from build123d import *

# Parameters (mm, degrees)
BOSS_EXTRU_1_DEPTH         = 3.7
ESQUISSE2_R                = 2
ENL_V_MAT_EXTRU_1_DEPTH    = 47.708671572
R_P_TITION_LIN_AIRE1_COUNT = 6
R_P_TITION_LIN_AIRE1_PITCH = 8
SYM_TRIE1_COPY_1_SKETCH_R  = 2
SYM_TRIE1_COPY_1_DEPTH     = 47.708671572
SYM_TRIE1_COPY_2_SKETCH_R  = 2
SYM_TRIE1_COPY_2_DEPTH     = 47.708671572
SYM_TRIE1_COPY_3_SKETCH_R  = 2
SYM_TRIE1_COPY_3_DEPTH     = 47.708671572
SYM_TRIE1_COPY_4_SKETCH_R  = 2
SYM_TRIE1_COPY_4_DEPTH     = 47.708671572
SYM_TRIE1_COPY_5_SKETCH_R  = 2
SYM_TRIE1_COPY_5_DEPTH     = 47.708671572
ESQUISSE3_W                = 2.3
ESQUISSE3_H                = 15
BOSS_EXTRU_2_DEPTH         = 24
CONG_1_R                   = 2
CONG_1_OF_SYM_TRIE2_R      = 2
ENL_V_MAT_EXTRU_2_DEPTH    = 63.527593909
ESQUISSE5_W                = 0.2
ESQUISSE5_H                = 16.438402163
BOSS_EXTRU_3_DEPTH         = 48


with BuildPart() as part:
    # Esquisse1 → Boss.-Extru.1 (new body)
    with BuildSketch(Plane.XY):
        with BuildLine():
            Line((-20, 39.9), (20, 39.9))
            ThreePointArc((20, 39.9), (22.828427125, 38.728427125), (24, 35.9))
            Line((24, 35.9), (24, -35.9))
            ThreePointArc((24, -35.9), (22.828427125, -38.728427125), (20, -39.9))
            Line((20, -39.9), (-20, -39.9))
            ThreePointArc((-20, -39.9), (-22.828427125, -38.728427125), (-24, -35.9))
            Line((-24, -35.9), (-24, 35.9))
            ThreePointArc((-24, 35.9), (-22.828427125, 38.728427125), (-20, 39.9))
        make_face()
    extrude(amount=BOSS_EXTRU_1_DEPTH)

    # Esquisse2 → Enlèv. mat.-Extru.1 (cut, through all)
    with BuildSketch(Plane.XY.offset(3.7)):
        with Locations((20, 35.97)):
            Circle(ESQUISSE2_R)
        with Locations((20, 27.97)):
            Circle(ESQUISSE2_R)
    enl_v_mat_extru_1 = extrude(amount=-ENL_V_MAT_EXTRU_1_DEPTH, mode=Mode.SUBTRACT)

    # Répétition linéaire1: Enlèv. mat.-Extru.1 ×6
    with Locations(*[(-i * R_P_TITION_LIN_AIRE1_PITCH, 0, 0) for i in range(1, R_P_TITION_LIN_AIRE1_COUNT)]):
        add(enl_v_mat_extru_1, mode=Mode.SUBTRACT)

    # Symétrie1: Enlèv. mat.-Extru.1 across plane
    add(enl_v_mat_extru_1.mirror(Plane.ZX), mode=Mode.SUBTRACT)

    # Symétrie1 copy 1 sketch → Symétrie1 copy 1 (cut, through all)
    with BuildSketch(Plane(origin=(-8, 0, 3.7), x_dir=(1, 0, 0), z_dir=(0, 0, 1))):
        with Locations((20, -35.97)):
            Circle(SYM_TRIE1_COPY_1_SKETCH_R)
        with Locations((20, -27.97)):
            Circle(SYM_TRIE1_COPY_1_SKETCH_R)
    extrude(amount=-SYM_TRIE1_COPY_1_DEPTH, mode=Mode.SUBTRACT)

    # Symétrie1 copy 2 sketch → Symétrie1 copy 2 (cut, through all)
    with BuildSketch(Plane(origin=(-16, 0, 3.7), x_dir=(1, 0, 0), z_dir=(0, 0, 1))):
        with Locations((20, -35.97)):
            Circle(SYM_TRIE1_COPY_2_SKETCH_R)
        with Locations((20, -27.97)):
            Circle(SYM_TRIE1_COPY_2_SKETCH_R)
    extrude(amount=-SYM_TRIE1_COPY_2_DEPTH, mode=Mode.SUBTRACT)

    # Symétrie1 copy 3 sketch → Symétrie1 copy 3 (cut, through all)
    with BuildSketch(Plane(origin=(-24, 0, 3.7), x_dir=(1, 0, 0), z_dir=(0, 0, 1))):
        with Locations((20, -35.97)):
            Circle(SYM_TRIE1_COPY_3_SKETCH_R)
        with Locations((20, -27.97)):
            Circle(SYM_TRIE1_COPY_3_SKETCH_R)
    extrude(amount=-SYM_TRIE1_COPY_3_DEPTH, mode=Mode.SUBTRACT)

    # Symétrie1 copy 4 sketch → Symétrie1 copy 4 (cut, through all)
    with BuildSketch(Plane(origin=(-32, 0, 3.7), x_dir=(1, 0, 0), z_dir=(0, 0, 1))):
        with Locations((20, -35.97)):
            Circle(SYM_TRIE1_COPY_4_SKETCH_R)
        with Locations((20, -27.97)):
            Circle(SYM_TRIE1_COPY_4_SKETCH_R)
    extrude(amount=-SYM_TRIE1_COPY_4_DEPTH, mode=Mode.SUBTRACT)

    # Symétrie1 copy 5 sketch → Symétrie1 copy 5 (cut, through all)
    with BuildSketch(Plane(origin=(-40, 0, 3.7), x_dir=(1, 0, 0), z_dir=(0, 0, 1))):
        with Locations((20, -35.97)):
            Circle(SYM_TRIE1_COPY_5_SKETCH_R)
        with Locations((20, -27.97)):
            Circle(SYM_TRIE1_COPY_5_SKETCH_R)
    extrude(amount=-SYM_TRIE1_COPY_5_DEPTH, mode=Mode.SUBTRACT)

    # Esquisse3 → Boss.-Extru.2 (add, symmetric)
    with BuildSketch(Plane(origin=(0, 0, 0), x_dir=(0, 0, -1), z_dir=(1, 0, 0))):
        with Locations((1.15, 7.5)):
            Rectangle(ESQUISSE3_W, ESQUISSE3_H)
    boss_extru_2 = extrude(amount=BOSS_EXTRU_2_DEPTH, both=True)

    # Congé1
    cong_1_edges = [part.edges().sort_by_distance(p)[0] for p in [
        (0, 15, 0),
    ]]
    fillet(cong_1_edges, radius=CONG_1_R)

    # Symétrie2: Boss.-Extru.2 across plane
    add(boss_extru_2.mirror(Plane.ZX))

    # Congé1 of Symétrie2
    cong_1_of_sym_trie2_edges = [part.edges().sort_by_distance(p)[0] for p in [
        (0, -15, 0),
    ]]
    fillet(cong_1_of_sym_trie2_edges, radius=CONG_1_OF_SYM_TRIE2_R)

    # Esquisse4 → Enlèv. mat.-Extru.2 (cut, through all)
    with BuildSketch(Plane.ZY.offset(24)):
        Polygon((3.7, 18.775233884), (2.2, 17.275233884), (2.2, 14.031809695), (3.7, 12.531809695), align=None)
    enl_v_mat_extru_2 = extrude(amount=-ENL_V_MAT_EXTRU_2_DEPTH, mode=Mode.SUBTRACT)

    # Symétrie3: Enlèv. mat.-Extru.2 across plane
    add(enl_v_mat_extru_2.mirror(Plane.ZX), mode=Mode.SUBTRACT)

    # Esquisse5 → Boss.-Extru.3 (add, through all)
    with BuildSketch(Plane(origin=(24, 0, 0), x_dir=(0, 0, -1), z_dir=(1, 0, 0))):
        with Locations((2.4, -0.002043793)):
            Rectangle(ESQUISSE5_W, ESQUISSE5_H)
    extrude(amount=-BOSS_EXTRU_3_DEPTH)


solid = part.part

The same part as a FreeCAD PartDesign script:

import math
import FreeCAD as App
import Part
import Sketcher
from FreeCAD import Vector


def edges_at(feature, points):
    """Names of the edges that pass closest to the given points."""
    edges = feature.Shape.Edges
    near = lambda p: min(range(len(edges)), key=lambda i: edges[i].distToShape(Part.Vertex(*p))[0])
    return sorted({f"Edge{near(p) + 1}" for p in points})

doc = App.newDocument("Part")
body = doc.addObject("PartDesign::Body", "Body")

sketch1 = body.newObject("Sketcher::SketchObject", "Sketch")
sketch1.AttachmentSupport = (doc.getObject("XY_Plane"), [""])
sketch1.MapMode = "FlatFace"
sketch1.addGeometry(Part.LineSegment(Vector(20, 39.9, 0), Vector(-20, 39.9, 0)), False)
sketch1.addGeometry(Part.ArcOfCircle(Part.Circle(Vector(-20, 35.9, 0), Vector(0, 0, 1), 4), math.radians(90), math.radians(180)), False)
sketch1.addGeometry(Part.LineSegment(Vector(-24, 35.9, 0), Vector(-24, -35.9, 0)), False)
sketch1.addGeometry(Part.ArcOfCircle(Part.Circle(Vector(-20, -35.9, 0), Vector(0, 0, 1), 4), math.radians(180), math.radians(270)), False)
sketch1.addGeometry(Part.LineSegment(Vector(-20, -39.9, 0), Vector(20, -39.9, 0)), False)
sketch1.addGeometry(Part.ArcOfCircle(Part.Circle(Vector(20, -35.9, 0), Vector(0, 0, 1), 4), math.radians(-90), math.radians(0)), False)
sketch1.addGeometry(Part.LineSegment(Vector(24, -35.9, 0), Vector(24, 35.9, 0)), False)
sketch1.addGeometry(Part.ArcOfCircle(Part.Circle(Vector(20, 35.9, 0), Vector(0, 0, 1), 4), math.radians(0), math.radians(90)), False)
sketch1.addConstraint(Sketcher.Constraint("Tangent", 0, 2, 1, 1))
sketch1.addConstraint(Sketcher.Constraint("Tangent", 1, 2, 2, 1))
sketch1.addConstraint(Sketcher.Constraint("Tangent", 2, 2, 3, 1))
sketch1.addConstraint(Sketcher.Constraint("Tangent", 3, 2, 4, 1))
sketch1.addConstraint(Sketcher.Constraint("Tangent", 4, 2, 5, 1))
sketch1.addConstraint(Sketcher.Constraint("Tangent", 5, 2, 6, 1))
sketch1.addConstraint(Sketcher.Constraint("Tangent", 6, 2, 7, 1))
sketch1.addConstraint(Sketcher.Constraint("Tangent", 7, 2, 0, 1))
sketch1.addConstraint(Sketcher.Constraint("Horizontal", 0))
sketch1.addConstraint(Sketcher.Constraint("Vertical", 2))
sketch1.addConstraint(Sketcher.Constraint("Horizontal", 4))
sketch1.addConstraint(Sketcher.Constraint("Vertical", 6))
sketch1.addConstraint(Sketcher.Constraint("Equal", 1, 3))
sketch1.addConstraint(Sketcher.Constraint("Equal", 3, 5))
sketch1.addConstraint(Sketcher.Constraint("Equal", 5, 7))
sketch1.addConstraint(Sketcher.Constraint("Symmetric", 1, 3, 5, 3, -1, 1))
sketch1.addConstraint(Sketcher.Constraint("Radius", 1, 4.0))
sketch1.addConstraint(Sketcher.Constraint("DistanceX", 0, 2, 0, 1, 40.0))
sketch1.addConstraint(Sketcher.Constraint("DistanceY", 2, 2, 2, 1, 71.8))
pad1 = body.newObject("PartDesign::Pad", "Pad")
pad1.Profile = sketch1
pad1.Length = 3.7

sketch2 = body.newObject("Sketcher::SketchObject", "Sketch001")
sketch2.AttachmentSupport = (doc.getObject("XY_Plane"), [""])
sketch2.MapMode = "FlatFace"
sketch2.AttachmentOffset = App.Placement(Vector(0, 0, 3.7), App.Rotation())
sketch2.addGeometry(Part.Circle(Vector(20, 35.97, 0), Vector(0, 0, 1), 2), False)
sketch2.addGeometry(Part.Circle(Vector(20, 27.97, 0), Vector(0, 0, 1), 2), False)
sketch2.addConstraint(Sketcher.Constraint("Equal", 0, 1))
sketch2.addConstraint(Sketcher.Constraint("Vertical", 0, 3, 1, 3))
sketch2.addConstraint(Sketcher.Constraint("Diameter", 0, 4.0))
sketch2.addConstraint(Sketcher.Constraint("DistanceX", -1, 1, 0, 3, 20.0))
sketch2.addConstraint(Sketcher.Constraint("DistanceY", 1, 3, 0, 3, 8.0))
sketch2.addConstraint(Sketcher.Constraint("DistanceY", -1, 1, 0, 3, 35.97))
pocket1 = body.newObject("PartDesign::Pocket", "Pocket")
pocket1.Profile = sketch2
pocket1.Type = "ThroughAll"
doc.recompute()

linearpattern = body.newObject("PartDesign::LinearPattern", "LinearPattern")
linearpattern.Originals = [pocket1]
linearpattern.Direction = (doc.getObject("X_Axis"), [""])
linearpattern.Mode = "offset"
linearpattern.Offset = 8
linearpattern.Occurrences = 6
linearpattern.Reversed = True
body.Tip = linearpattern
doc.recompute()

mirrored = body.newObject("PartDesign::Mirrored", "Mirrored")
mirrored.Originals = [pocket1]
mirrored.MirrorPlane = (doc.getObject("XZ_Plane"), [""])
body.Tip = mirrored

sketch3 = body.newObject("Sketcher::SketchObject", "Sketch002")
sketch3.AttachmentSupport = (doc.getObject("XY_Plane"), [""])
sketch3.MapMode = "FlatFace"
sketch3.AttachmentOffset = App.Placement(Vector(0, 0, 3.7), App.Rotation())
sketch3.addGeometry(Part.Circle(Vector(12, -35.97, 0), Vector(0, 0, 1), 2), False)
sketch3.addGeometry(Part.Circle(Vector(12, -27.97, 0), Vector(0, 0, 1), 2), False)
sketch3.addConstraint(Sketcher.Constraint("Equal", 0, 1))
sketch3.addConstraint(Sketcher.Constraint("Vertical", 0, 3, 1, 3))
sketch3.addConstraint(Sketcher.Constraint("Diameter", 0, 4.0))
sketch3.addConstraint(Sketcher.Constraint("DistanceX", -1, 1, 0, 3, 12.0))
sketch3.addConstraint(Sketcher.Constraint("DistanceY", 0, 3, 1, 3, 8.0))
sketch3.addConstraint(Sketcher.Constraint("DistanceY", 0, 3, -1, 1, 35.97))
pocket2 = body.newObject("PartDesign::Pocket", "Pocket001")
pocket2.Profile = sketch3
pocket2.Type = "ThroughAll"

sketch4 = body.newObject("Sketcher::SketchObject", "Sketch003")
sketch4.AttachmentSupport = (doc.getObject("XY_Plane"), [""])
sketch4.MapMode = "FlatFace"
sketch4.AttachmentOffset = App.Placement(Vector(0, 0, 3.7), App.Rotation())
sketch4.addGeometry(Part.Circle(Vector(4, -35.97, 0), Vector(0, 0, 1), 2), False)
sketch4.addGeometry(Part.Circle(Vector(4, -27.97, 0), Vector(0, 0, 1), 2), False)
sketch4.addConstraint(Sketcher.Constraint("Equal", 0, 1))
sketch4.addConstraint(Sketcher.Constraint("Vertical", 0, 3, 1, 3))
sketch4.addConstraint(Sketcher.Constraint("Diameter", 0, 4.0))
sketch4.addConstraint(Sketcher.Constraint("DistanceX", -1, 1, 0, 3, 4.0))
sketch4.addConstraint(Sketcher.Constraint("DistanceY", 0, 3, 1, 3, 8.0))
sketch4.addConstraint(Sketcher.Constraint("DistanceY", 0, 3, -1, 1, 35.97))
pocket3 = body.newObject("PartDesign::Pocket", "Pocket002")
pocket3.Profile = sketch4
pocket3.Type = "ThroughAll"

sketch5 = body.newObject("Sketcher::SketchObject", "Sketch004")
sketch5.AttachmentSupport = (doc.getObject("XY_Plane"), [""])
sketch5.MapMode = "FlatFace"
sketch5.AttachmentOffset = App.Placement(Vector(0, 0, 3.7), App.Rotation())
sketch5.addGeometry(Part.Circle(Vector(-4, -35.97, 0), Vector(0, 0, 1), 2), False)
sketch5.addGeometry(Part.Circle(Vector(-4, -27.97, 0), Vector(0, 0, 1), 2), False)
sketch5.addConstraint(Sketcher.Constraint("Equal", 0, 1))
sketch5.addConstraint(Sketcher.Constraint("Vertical", 0, 3, 1, 3))
sketch5.addConstraint(Sketcher.Constraint("Diameter", 0, 4.0))
sketch5.addConstraint(Sketcher.Constraint("DistanceX", 0, 3, -1, 1, 4.0))
sketch5.addConstraint(Sketcher.Constraint("DistanceY", 0, 3, 1, 3, 8.0))
sketch5.addConstraint(Sketcher.Constraint("DistanceY", 0, 3, -1, 1, 35.97))
pocket4 = body.newObject("PartDesign::Pocket", "Pocket003")
pocket4.Profile = sketch5
pocket4.Type = "ThroughAll"

sketch6 = body.newObject("Sketcher::SketchObject", "Sketch005")
sketch6.AttachmentSupport = (doc.getObject("XY_Plane"), [""])
sketch6.MapMode = "FlatFace"
sketch6.AttachmentOffset = App.Placement(Vector(0, 0, 3.7), App.Rotation())
sketch6.addGeometry(Part.Circle(Vector(-12, -35.97, 0), Vector(0, 0, 1), 2), False)
sketch6.addGeometry(Part.Circle(Vector(-12, -27.97, 0), Vector(0, 0, 1), 2), False)
sketch6.addConstraint(Sketcher.Constraint("Equal", 0, 1))
sketch6.addConstraint(Sketcher.Constraint("Vertical", 0, 3, 1, 3))
sketch6.addConstraint(Sketcher.Constraint("Diameter", 0, 4.0))
sketch6.addConstraint(Sketcher.Constraint("DistanceX", 0, 3, -1, 1, 12.0))
sketch6.addConstraint(Sketcher.Constraint("DistanceY", 0, 3, 1, 3, 8.0))
sketch6.addConstraint(Sketcher.Constraint("DistanceY", 0, 3, -1, 1, 35.97))
pocket5 = body.newObject("PartDesign::Pocket", "Pocket004")
pocket5.Profile = sketch6
pocket5.Type = "ThroughAll"

sketch7 = body.newObject("Sketcher::SketchObject", "Sketch006")
sketch7.AttachmentSupport = (doc.getObject("XY_Plane"), [""])
sketch7.MapMode = "FlatFace"
sketch7.AttachmentOffset = App.Placement(Vector(0, 0, 3.7), App.Rotation())
sketch7.addGeometry(Part.Circle(Vector(-20, -35.97, 0), Vector(0, 0, 1), 2), False)
sketch7.addGeometry(Part.Circle(Vector(-20, -27.97, 0), Vector(0, 0, 1), 2), False)
sketch7.addConstraint(Sketcher.Constraint("Equal", 0, 1))
sketch7.addConstraint(Sketcher.Constraint("Vertical", 0, 3, 1, 3))
sketch7.addConstraint(Sketcher.Constraint("Diameter", 0, 4.0))
sketch7.addConstraint(Sketcher.Constraint("DistanceX", 0, 3, -1, 1, 20.0))
sketch7.addConstraint(Sketcher.Constraint("DistanceY", 0, 3, 1, 3, 8.0))
sketch7.addConstraint(Sketcher.Constraint("DistanceY", 0, 3, -1, 1, 35.97))
pocket6 = body.newObject("PartDesign::Pocket", "Pocket005")
pocket6.Profile = sketch7
pocket6.Type = "ThroughAll"

sketch8 = body.newObject("Sketcher::SketchObject", "Sketch007")
sketch8.AttachmentSupport = (doc.getObject("YZ_Plane"), [""])
sketch8.MapMode = "FlatFace"
sketch8.addGeometry(Part.LineSegment(Vector(15, 0, 0), Vector(0, 0, 0)), False)
sketch8.addGeometry(Part.LineSegment(Vector(0, 0, 0), Vector(0, -2.3, 0)), False)
sketch8.addGeometry(Part.LineSegment(Vector(0, -2.3, 0), Vector(15, -2.3, 0)), False)
sketch8.addGeometry(Part.LineSegment(Vector(15, -2.3, 0), Vector(15, 0, 0)), False)
sketch8.addConstraint(Sketcher.Constraint("Coincident", 0, 2, 1, 1))
sketch8.addConstraint(Sketcher.Constraint("Coincident", 1, 2, 2, 1))
sketch8.addConstraint(Sketcher.Constraint("Coincident", 2, 2, 3, 1))
sketch8.addConstraint(Sketcher.Constraint("Coincident", 3, 2, 0, 1))
sketch8.addConstraint(Sketcher.Constraint("Horizontal", 0))
sketch8.addConstraint(Sketcher.Constraint("Vertical", 1))
sketch8.addConstraint(Sketcher.Constraint("Horizontal", 2))
sketch8.addConstraint(Sketcher.Constraint("Vertical", 3))
sketch8.addConstraint(Sketcher.Constraint("Coincident", 0, 2, -1, 1))
sketch8.addConstraint(Sketcher.Constraint("DistanceX", 0, 2, 0, 1, 15.0))
sketch8.addConstraint(Sketcher.Constraint("DistanceY", 1, 2, 1, 1, 2.3))
pad2 = body.newObject("PartDesign::Pad", "Pad001")
pad2.Profile = sketch8
pad2.Length = 48
pad2.Midplane = True
doc.recompute()

fillet = body.newObject("PartDesign::Fillet", "Fillet")
fillet.Base = (pad2, edges_at(pad2, [(0, 15, 0)]))
fillet.Radius = 2
doc.recompute()

mirrored2 = body.newObject("PartDesign::Mirrored", "Mirrored001")
mirrored2.Originals = [pad2]
mirrored2.MirrorPlane = (doc.getObject("XZ_Plane"), [""])
body.Tip = mirrored2
doc.recompute()

fillet2 = body.newObject("PartDesign::Fillet", "Fillet001")
fillet2.Base = (mirrored2, edges_at(mirrored2, [(0, -15, 0)]))
fillet2.Radius = 2

sketch9 = body.newObject("Sketcher::SketchObject", "Sketch008")
sketch9.AttachmentSupport = (doc.getObject("YZ_Plane"), [""])
sketch9.MapMode = "FlatFace"
sketch9.AttachmentOffset = App.Placement(Vector(0, 0, -24), App.Rotation())
sketch9.addGeometry(Part.LineSegment(Vector(18.775234, 3.7, 0), Vector(17.275234, 2.2, 0)), False)
sketch9.addGeometry(Part.LineSegment(Vector(17.275234, 2.2, 0), Vector(14.03181, 2.2, 0)), False)
sketch9.addGeometry(Part.LineSegment(Vector(14.03181, 2.2, 0), Vector(12.53181, 3.7, 0)), False)
sketch9.addGeometry(Part.LineSegment(Vector(12.53181, 3.7, 0), Vector(18.775234, 3.7, 0)), False)
sketch9.addConstraint(Sketcher.Constraint("Coincident", 0, 2, 1, 1))
sketch9.addConstraint(Sketcher.Constraint("Coincident", 1, 2, 2, 1))
sketch9.addConstraint(Sketcher.Constraint("Coincident", 2, 2, 3, 1))
sketch9.addConstraint(Sketcher.Constraint("Coincident", 3, 2, 0, 1))
sketch9.addConstraint(Sketcher.Constraint("Horizontal", 1))
sketch9.addConstraint(Sketcher.Constraint("Horizontal", 3))
sketch9.addConstraint(Sketcher.Constraint("Perpendicular", 0, 2))
sketch9.addConstraint(Sketcher.Constraint("Equal", 0, 2))
sketch9.addConstraint(Sketcher.Constraint("DistanceY", -1, 1, 0, 2, 2.2))
sketch9.addConstraint(Sketcher.Constraint("DistanceY", -1, 1, 2, 2, 3.7))
sketch9.addConstraint(Sketcher.Constraint("DistanceX", 1, 2, 1, 1, 3.243424))
sketch9.addConstraint(Sketcher.Constraint("DistanceX", -1, 1, 1, 2, 14.03181))
pocket7 = body.newObject("PartDesign::Pocket", "Pocket006")
pocket7.Profile = sketch9
pocket7.Type = "ThroughAll"
pocket7.Reversed = True
doc.recompute()

mirrored3 = body.newObject("PartDesign::Mirrored", "Mirrored002")
mirrored3.Originals = [pocket7]
mirrored3.MirrorPlane = (doc.getObject("XZ_Plane"), [""])
body.Tip = mirrored3

sketch10 = body.newObject("Sketcher::SketchObject", "Sketch009")
sketch10.AttachmentSupport = (doc.getObject("YZ_Plane"), [""])
sketch10.MapMode = "FlatFace"
sketch10.AttachmentOffset = App.Placement(Vector(0, 0, 24), App.Rotation())
sketch10.addGeometry(Part.LineSegment(Vector(8.217157, -2.3, 0), Vector(-8.221245, -2.3, 0)), False)
sketch10.addGeometry(Part.LineSegment(Vector(-8.221245, -2.3, 0), Vector(-8.221245, -2.5, 0)), False)
sketch10.addGeometry(Part.LineSegment(Vector(-8.221245, -2.5, 0), Vector(8.217157, -2.5, 0)), False)
sketch10.addGeometry(Part.LineSegment(Vector(8.217157, -2.5, 0), Vector(8.217157, -2.3, 0)), False)
sketch10.addConstraint(Sketcher.Constraint("Coincident", 0, 2, 1, 1))
sketch10.addConstraint(Sketcher.Constraint("Coincident", 1, 2, 2, 1))
sketch10.addConstraint(Sketcher.Constraint("Coincident", 2, 2, 3, 1))
sketch10.addConstraint(Sketcher.Constraint("Coincident", 3, 2, 0, 1))
sketch10.addConstraint(Sketcher.Constraint("Horizontal", 0))
sketch10.addConstraint(Sketcher.Constraint("Vertical", 1))
sketch10.addConstraint(Sketcher.Constraint("Horizontal", 2))
sketch10.addConstraint(Sketcher.Constraint("Vertical", 3))
sketch10.addConstraint(Sketcher.Constraint("DistanceY", 1, 2, 1, 1, 0.2))
sketch10.addConstraint(Sketcher.Constraint("DistanceY", 0, 2, -1, 1, 2.3))
sketch10.addConstraint(Sketcher.Constraint("DistanceX", 0, 2, 0, 1, 16.438402))
sketch10.addConstraint(Sketcher.Constraint("DistanceX", 0, 2, -1, 1, 8.221245))
pad3 = body.newObject("PartDesign::Pad", "Pad002")
pad3.Profile = sketch10
pad3.Length = 48
pad3.Reversed = True

doc.recompute()
